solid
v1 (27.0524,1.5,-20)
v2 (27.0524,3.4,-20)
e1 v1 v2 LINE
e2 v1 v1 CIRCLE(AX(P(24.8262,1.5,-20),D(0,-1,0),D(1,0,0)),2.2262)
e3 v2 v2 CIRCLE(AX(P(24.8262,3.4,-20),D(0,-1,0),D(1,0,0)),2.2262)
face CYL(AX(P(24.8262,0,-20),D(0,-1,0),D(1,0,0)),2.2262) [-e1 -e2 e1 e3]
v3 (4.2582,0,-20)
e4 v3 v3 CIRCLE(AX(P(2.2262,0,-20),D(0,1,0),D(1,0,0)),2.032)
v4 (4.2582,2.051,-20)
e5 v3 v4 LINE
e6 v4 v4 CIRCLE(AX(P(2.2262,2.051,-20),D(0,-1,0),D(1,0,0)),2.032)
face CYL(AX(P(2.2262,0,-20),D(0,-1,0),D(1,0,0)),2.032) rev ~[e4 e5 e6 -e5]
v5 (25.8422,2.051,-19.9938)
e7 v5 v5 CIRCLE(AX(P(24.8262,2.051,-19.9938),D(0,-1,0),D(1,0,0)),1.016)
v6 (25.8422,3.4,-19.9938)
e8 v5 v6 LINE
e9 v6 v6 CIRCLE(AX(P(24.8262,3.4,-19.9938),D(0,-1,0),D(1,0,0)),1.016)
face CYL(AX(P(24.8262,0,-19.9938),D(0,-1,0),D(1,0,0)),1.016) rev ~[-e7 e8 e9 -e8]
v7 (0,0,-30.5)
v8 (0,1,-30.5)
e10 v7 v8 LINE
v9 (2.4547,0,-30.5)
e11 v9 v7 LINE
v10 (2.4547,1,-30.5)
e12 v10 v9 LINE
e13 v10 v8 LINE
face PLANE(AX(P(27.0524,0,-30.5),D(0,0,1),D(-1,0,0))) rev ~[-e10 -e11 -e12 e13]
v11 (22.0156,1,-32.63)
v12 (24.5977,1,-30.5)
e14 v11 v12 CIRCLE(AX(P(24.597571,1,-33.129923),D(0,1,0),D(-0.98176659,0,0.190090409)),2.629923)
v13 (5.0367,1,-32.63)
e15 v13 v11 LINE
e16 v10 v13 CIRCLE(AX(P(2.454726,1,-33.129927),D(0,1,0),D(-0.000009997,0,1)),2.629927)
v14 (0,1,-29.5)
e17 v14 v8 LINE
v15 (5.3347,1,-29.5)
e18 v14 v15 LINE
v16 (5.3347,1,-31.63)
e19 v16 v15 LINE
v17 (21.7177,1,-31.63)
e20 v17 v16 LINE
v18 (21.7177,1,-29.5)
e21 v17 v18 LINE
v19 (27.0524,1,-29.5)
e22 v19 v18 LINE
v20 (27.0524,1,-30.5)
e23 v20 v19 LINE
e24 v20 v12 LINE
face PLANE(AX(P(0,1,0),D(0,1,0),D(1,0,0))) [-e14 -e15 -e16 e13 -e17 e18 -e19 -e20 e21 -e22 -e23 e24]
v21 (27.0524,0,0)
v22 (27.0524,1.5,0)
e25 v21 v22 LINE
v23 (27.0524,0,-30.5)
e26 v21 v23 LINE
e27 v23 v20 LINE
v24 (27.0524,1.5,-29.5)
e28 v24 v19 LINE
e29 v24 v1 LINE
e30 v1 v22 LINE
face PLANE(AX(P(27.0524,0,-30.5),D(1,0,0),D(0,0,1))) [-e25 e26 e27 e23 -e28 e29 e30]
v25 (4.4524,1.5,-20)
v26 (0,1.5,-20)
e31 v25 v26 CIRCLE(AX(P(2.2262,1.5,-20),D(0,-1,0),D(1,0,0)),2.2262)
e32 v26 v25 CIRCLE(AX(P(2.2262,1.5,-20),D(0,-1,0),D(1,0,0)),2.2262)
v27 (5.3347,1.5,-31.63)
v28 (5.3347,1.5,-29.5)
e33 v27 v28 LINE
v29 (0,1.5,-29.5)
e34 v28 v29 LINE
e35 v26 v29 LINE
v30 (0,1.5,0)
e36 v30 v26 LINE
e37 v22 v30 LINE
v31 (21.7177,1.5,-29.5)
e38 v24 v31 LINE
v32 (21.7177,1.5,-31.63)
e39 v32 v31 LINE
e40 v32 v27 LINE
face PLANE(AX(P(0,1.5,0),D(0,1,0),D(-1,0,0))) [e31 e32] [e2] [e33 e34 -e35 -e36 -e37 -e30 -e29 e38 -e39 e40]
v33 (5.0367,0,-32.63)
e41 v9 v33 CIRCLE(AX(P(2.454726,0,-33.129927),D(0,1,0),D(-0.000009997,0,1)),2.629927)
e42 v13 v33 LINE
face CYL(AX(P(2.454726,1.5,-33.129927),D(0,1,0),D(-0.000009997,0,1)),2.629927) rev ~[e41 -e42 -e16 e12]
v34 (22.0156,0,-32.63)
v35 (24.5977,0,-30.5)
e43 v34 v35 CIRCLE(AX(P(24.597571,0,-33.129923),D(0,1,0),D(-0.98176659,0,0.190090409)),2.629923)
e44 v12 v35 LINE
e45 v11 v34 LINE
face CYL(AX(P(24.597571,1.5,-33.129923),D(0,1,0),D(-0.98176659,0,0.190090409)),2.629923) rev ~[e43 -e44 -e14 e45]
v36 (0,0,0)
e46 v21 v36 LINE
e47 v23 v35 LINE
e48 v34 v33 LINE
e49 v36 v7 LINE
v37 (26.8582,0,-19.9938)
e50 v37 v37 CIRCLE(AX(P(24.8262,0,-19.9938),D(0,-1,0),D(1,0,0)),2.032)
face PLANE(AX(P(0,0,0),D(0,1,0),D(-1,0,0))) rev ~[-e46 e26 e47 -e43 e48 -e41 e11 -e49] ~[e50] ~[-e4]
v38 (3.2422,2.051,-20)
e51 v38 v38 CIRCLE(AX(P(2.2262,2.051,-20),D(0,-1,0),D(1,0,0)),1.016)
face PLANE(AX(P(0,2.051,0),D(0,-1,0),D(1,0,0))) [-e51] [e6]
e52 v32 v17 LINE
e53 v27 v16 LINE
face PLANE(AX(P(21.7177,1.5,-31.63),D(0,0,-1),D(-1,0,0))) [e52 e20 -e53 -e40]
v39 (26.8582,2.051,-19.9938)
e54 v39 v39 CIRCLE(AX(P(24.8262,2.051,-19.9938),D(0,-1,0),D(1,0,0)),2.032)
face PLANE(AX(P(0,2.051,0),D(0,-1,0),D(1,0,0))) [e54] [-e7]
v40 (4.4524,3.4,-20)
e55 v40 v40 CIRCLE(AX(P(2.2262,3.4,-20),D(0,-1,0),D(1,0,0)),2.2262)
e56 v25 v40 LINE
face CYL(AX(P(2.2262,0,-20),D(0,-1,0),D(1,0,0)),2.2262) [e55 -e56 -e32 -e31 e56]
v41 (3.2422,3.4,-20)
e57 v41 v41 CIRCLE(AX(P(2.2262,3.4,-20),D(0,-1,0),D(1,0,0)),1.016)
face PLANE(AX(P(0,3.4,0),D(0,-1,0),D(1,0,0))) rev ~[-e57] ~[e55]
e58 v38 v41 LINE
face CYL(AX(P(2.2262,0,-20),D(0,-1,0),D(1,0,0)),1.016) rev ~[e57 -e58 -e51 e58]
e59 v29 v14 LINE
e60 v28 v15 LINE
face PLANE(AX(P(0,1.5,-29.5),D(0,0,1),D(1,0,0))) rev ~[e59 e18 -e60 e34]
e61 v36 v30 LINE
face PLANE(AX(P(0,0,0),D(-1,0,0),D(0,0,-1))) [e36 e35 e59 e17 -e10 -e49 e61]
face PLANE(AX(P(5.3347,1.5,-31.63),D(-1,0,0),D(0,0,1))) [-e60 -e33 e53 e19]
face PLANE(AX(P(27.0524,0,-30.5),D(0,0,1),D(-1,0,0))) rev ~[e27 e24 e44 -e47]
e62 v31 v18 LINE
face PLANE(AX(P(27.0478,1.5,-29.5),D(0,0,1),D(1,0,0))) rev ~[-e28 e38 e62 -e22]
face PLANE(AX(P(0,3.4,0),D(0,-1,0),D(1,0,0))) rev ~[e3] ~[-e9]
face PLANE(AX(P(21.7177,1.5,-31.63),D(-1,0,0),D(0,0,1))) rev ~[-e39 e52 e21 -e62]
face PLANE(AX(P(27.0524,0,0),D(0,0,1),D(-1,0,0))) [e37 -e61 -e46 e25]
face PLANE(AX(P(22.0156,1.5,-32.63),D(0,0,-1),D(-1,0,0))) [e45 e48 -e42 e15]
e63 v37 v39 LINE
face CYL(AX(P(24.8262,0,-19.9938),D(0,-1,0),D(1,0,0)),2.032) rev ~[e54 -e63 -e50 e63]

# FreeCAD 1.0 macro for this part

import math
import FreeCAD as App
import Part
import Sketcher
Q = App.Units.Quantity


def add_polygon(sketch, points):
    """Adds a closed chain of lines whose ends are joined by coincident constraints."""
    first, n = sketch.GeometryCount, len(points)
    for a, b in zip(points, points[1:] + points[:1]):
        sketch.addGeometry(Part.LineSegment(App.Vector(*a, 0), App.Vector(*b, 0)), False)
    for i in range(n):
        sketch.addConstraint(Sketcher.Constraint("Coincident", first + i, 2, first + (i + 1) % n, 1))

doc = App.newDocument("Part")
body = doc.addObject("PartDesign::Body", "Body")

sketch1 = body.newObject("Sketcher::SketchObject", "Sketch")
sketch1.AttachmentSupport = (doc.getObject("XZ_Plane"), [""])
sketch1.MapMode = "FlatFace"
add_polygon(sketch1, [(27.0524, 0), (27.0524, -30.5), (0, -30.5), (0, 0)])
sketch1.addConstraint([
    Sketcher.Constraint("Vertical", 0),
    Sketcher.Constraint("Horizontal", 1),
    Sketcher.Constraint("Vertical", 2),
    Sketcher.Constraint("Horizontal", 3),
    Sketcher.Constraint("Coincident", 2, 2, -1, 1),
    Sketcher.Constraint("DistanceY", 0, 2, 0, 1, Q("30.5 mm")),
    Sketcher.Constraint("DistanceX", 1, 2, 1, 1, Q("27.0524 mm")),
])
pad1 = body.newObject("PartDesign::Pad", "Pad")
pad1.Profile = sketch1
pad1.Length = 1.5
pad1.Reversed = True

sketch2 = body.newObject("Sketcher::SketchObject", "Sketch001")
sketch2.AttachmentSupport = (doc.getObject("XZ_Plane"), [""])
sketch2.MapMode = "FlatFace"
sketch2.addGeometry([
    Part.Circle(App.Vector(2.2262, -20, 0), App.Vector(0, 0, 1), 2.2262),
    Part.Circle(App.Vector(24.8262, -20, 0), App.Vector(0, 0, 1), 2.2262),
], False)
sketch2.addConstraint([
    Sketcher.Constraint("Equal", 0, 1),
    Sketcher.Constraint("Horizontal", 0, 3, 1, 3),
    Sketcher.Constraint("DistanceY", 0, 3, -1, 1, Q("20 mm")),
    Sketcher.Constraint("Diameter", 0, Q("4.4524 mm")),
    Sketcher.Constraint("DistanceX", 0, 3, 1, 3, Q("22.6 mm")),
    Sketcher.Constraint("DistanceX", -1, 1, 0, 3, Q("2.2262 mm")),
])
pad2 = body.newObject("PartDesign::Pad", "Pad001")
pad2.Profile = sketch2
pad2.Length = 3.4
pad2.Reversed = True

sketch3 = body.newObject("Sketcher::SketchObject", "Sketch002")
sketch3.AttachmentSupport = (doc.getObject("XZ_Plane"), [""])
sketch3.MapMode = "FlatFace"
sketch3.addGeometry([
    Part.Circle(App.Vector(24.8262, -19.9938, 0), App.Vector(0, 0, 1), 1.016),
    Part.Circle(App.Vector(2.2262, -20, 0), App.Vector(0, 0, 1), 1.016),
], False)
sketch3.addConstraint([
    Sketcher.Constraint("Equal", 0, 1),
    Sketcher.Constraint("Diameter", 0, Q("2.032 mm")),
    Sketcher.Constraint("DistanceY", 1, 3, -1, 1, Q("20 mm")),
    Sketcher.Constraint("DistanceX", 1, 3, 0, 3, Q("22.6 mm")),
    Sketcher.Constraint("DistanceX", -1, 1, 0, 3, Q("24.8262 mm")),
    Sketcher.Constraint("DistanceY", 0, 3, -1, 1, Q("19.9938 mm")),
])
pocket1 = body.newObject("PartDesign::Pocket", "Pocket")
pocket1.Profile = sketch3
pocket1.Length = 3.4

sketch4 = body.newObject("Sketcher::SketchObject", "Sketch003")
sketch4.AttachmentSupport = (doc.getObject("XZ_Plane"), [""])
sketch4.MapMode = "FlatFace"
sketch4.addGeometry([
    Part.Circle(App.Vector(24.8262, -19.9938, 0), App.Vector(0, 0, 1), 2.032),
    Part.Circle(App.Vector(2.2262, -20, 0), App.Vector(0, 0, 1), 2.032),
], False)
sketch4.addConstraint([
    Sketcher.Constraint("Equal", 0, 1),
    Sketcher.Constraint("Diameter", 0, Q("4.064 mm")),
    Sketcher.Constraint("DistanceY", 1, 3, -1, 1, Q("20 mm")),
    Sketcher.Constraint("DistanceX", 1, 3, 0, 3, Q("22.6 mm")),
    Sketcher.Constraint("DistanceX", -1, 1, 0, 3, Q("24.8262 mm")),
    Sketcher.Constraint("DistanceY", 0, 3, -1, 1, Q("19.9938 mm")),
])
pocket2 = body.newObject("PartDesign::Pocket", "Pocket001")
pocket2.Profile = sketch4
pocket2.Length = 2.051

sketch5 = body.newObject("Sketcher::SketchObject", "Sketch004")
sketch5.AttachmentSupport = (doc.getObject("XZ_Plane"), [""])
sketch5.MapMode = "FlatFace"
sketch5.AttachmentOffset = App.Placement(App.Vector(0, 0, -1.5), App.Rotation())
sketch5.addGeometry([
    Part.ArcOfCircle(Part.Circle(App.Vector(24.5977, -33.13, 0), App.Vector(0, 0, 1), 2.630065), math.radians(90), math.radians(169.040832)),
    Part.LineSegment(App.Vector(22.0156, -32.63, 0), App.Vector(5.0367, -32.63, 0)),
    Part.ArcOfCircle(Part.Circle(App.Vector(2.4547, -33.13, 0), App.Vector(0, 0, 1), 2.63), math.radians(10.959582), math.radians(90)),
    Part.LineSegment(App.Vector(2.4547, -30.5, 0), App.Vector(24.5977, -30.5, 0)),
], False)
sketch5.addConstraint([
    Sketcher.Constraint("Coincident", 0, 2, 1, 1),
    Sketcher.Constraint("Coincident", 1, 2, 2, 1),
    Sketcher.Constraint("Tangent", 2, 2, 3, 1),
    Sketcher.Constraint("Tangent", 3, 2, 0, 1),
    Sketcher.Constraint("Horizontal", 1),
    Sketcher.Constraint("Horizontal", 3),
    Sketcher.Constraint("Equal", 0, 2),
    Sketcher.Constraint("Radius", 0, Q("2.63 mm")),
    Sketcher.Constraint("DistanceY", 2, 2, -1, 1, Q("30.5 mm")),
    Sketcher.Constraint("DistanceY", 0, 3, 0, 2, Q("0.5 mm")),
    Sketcher.Constraint("DistanceX", 1, 2, 1, 1, Q("16.979 mm")),
    Sketcher.Constraint("DistanceX", -1, 1, 0, 3, Q("24.5977 mm")),
])
pad3 = body.newObject("PartDesign::Pad", "Pad002")
pad3.Profile = sketch5
pad3.Length = 1.5

sketch6 = body.newObject("Sketcher::SketchObject", "Sketch005")
sketch6.AttachmentSupport = (doc.getObject("XZ_Plane"), [""])
sketch6.MapMode = "FlatFace"
sketch6.AttachmentOffset = App.Placement(App.Vector(0, 0, -1.5), App.Rotation())
sketch6.addGeometry([
    Part.LineSegment(App.Vector(21.7177, -29.5, 0), App.Vector(27.0524, -29.5, 0)),
    Part.LineSegment(App.Vector(27.0524, -29.5, 0), App.Vector(27.0524, -30.5, 0)),
    Part.LineSegment(App.Vector(27.0524, -30.5, 0), App.Vector(24.5977, -30.5, 0)),
    Part.ArcOfCircle(Part.Circle(App.Vector(24.5977, -33.13, 0), App.Vector(0, 0, 1), 2.630065), math.radians(90), math.radians(169.040832)),
    Part.LineSegment(App.Vector(22.0156, -32.63, 0), App.Vector(5.0367, -32.63, 0)),
    Part.ArcOfCircle(Part.Circle(App.Vector(2.4547, -33.13, 0), App.Vector(0, 0, 1), 2.63), math.radians(10.959582), math.radians(90)),
    Part.LineSegment(App.Vector(2.4547, -30.5, 0), App.Vector(0, -30.5, 0)),
    Part.LineSegment(App.Vector(0, -30.5, 0), App.Vector(0, -29.5, 0)),
    Part.LineSegment(App.Vector(0, -29.5, 0), App.Vector(5.3347, -29.5, 0)),
    Part.LineSegment(App.Vector(5.3347, -29.5, 0), App.Vector(5.3347, -31.63, 0)),
    Part.LineSegment(App.Vector(5.3347, -31.63, 0), App.Vector(21.7177, -31.63, 0)),
    Part.LineSegment(App.Vector(21.7177, -31.63, 0), App.Vector(21.7177, -29.5, 0)),
], False)
sketch6.addConstraint([
    Sketcher.Constraint("Coincident", 0, 2, 1, 1),
    Sketcher.Constraint("Coincident", 1, 2, 2, 1),
    Sketcher.Constraint("Tangent", 2, 2, 3, 1),
    Sketcher.Constraint("Coincident", 3, 2, 4, 1),
    Sketcher.Constraint("Coincident", 4, 2, 5, 1),
    Sketcher.Constraint("Tangent", 5, 2, 6, 1),
    Sketcher.Constraint("Coincident", 6, 2, 7, 1),
    Sketcher.Constraint("Coincident", 7, 2, 8, 1),
    Sketcher.Constraint("Coincident", 8, 2, 9, 1),
    Sketcher.Constraint("Coincident", 9, 2, 10, 1),
    Sketcher.Constraint("Coincident", 10, 2, 11, 1),
    Sketcher.Constraint("Coincident", 11, 2, 0, 1),
    Sketcher.Constraint("Horizontal", 0),
    Sketcher.Constraint("Vertical", 1),
    Sketcher.Constraint("Horizontal", 2),
    Sketcher.Constraint("Horizontal", 4),
    Sketcher.Constraint("Horizontal", 6),
    Sketcher.Constraint("Vertical", 7),
    Sketcher.Constraint("Horizontal", 8),
    Sketcher.Constraint("Vertical", 9),
    Sketcher.Constraint("Horizontal", 10),
    Sketcher.Constraint("Vertical", 11),
    Sketcher.Constraint("Equal", 3, 5),
    Sketcher.Constraint("PointOnObject", 6, 2, -2),
    Sketcher.Constraint("Horizontal", 3, 3, 5, 3),
    Sketcher.Constraint("Horizontal", 0, 2, 7, 2),
    Sketcher.Constraint("Equal", 2, 6),
    Sketcher.Constraint("Equal", 0, 8),
    Sketcher.Constraint("DistanceY", 1, 2, 1, 1, Q("1 mm")),
    Sketcher.Constraint("Radius", 3, Q("2.63 mm")),
    Sketcher.Constraint("DistanceY", 4, 2, 9, 2, Q("1 mm")),
    Sketcher.Constraint("DistanceY", 9, 2, 9, 1, Q("2.13 mm")),
    Sketcher.Constraint("DistanceY", 0, 2, -1, 1, Q("29.5 mm")),
    Sketcher.Constraint("DistanceX", 4, 2, 4, 1, Q("16.979 mm")),
    Sketcher.Constraint("DistanceX", 10, 1, 10, 2, Q("16.383 mm")),
    Sketcher.Constraint("DistanceX", 0, 1, 0, 2, Q("5.3347 mm")),
])
pocket3 = body.newObject("PartDesign::Pocket", "Pocket002")
pocket3.Profile = sketch6
pocket3.Length = 0.5
pocket3.Reversed = True

doc.recompute()
